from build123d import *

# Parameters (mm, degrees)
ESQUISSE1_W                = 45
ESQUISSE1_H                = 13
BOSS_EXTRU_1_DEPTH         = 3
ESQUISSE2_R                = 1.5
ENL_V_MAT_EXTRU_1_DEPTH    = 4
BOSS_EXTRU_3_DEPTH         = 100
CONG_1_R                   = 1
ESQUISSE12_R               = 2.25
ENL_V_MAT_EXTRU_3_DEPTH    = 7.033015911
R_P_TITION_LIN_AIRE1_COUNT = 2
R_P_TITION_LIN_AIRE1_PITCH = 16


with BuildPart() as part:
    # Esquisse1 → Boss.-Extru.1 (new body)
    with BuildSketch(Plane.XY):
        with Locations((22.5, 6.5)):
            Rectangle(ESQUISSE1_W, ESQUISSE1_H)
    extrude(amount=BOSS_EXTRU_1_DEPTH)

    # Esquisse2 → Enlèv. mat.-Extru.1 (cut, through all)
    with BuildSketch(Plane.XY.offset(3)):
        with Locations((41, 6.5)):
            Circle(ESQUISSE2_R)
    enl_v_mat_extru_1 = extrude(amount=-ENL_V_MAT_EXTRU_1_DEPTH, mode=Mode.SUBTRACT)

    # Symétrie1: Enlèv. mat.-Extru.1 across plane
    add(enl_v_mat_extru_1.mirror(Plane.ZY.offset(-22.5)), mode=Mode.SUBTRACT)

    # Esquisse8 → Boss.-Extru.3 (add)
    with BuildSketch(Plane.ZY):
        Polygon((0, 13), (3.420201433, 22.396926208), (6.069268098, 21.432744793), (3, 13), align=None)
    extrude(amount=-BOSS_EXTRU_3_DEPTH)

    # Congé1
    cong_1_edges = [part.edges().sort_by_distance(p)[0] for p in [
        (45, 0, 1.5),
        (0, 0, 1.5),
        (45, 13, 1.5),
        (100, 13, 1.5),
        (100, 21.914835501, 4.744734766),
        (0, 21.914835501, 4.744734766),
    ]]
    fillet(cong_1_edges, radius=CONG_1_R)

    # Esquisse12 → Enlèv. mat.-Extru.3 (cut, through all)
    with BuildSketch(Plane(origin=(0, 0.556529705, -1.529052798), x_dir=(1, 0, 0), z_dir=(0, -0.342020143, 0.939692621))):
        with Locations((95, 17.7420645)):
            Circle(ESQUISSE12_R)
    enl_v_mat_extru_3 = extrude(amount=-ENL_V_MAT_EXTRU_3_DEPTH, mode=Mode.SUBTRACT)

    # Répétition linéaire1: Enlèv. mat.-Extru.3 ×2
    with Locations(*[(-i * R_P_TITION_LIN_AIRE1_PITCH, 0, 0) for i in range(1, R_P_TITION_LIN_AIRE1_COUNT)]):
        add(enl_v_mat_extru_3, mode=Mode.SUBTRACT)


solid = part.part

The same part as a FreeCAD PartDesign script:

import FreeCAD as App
import Part
import Sketcher

V = App.Vector
Q = App.Units.Quantity


def edges_at(feature, points):
    """Names of the edges that pass closest to the given points."""
    edges = feature.Shape.Edges
    near = lambda p: min(range(len(edges)), key=lambda i: edges[i].distToShape(Part.Vertex(*p))[0])
    return sorted({f"Edge{near(p) + 1}" for p in points})


def add_polygon(sketch, points):
    """Adds a closed chain of lines whose ends are joined by coincident constraints."""
    first, n = sketch.GeometryCount, len(points)
    for a, b in zip(points, points[1:] + points[:1]):
        sketch.addGeometry(Part.LineSegment(App.Vector(*a, 0), App.Vector(*b, 0)), False)
    for i in range(n):
        sketch.addConstraint(Sketcher.Constraint("Coincident", first + i, 2, first + (i + 1) % n, 1))

doc = App.newDocument("Part")
body = doc.addObject("PartDesign::Body", "Body")

sketch1 = body.newObject("Sketcher::SketchObject", "Sketch")
sketch1.AttachmentSupport = (doc.getObject("XY_Plane"), [""])
sketch1.MapMode = "FlatFace"
add_polygon(sketch1, [(0, 13), (0, 0), (45, 0), (45, 13)])
sketch1.addConstraint([
    Sketcher.Constraint("Vertical", 0),
    Sketcher.Constraint("Horizontal", 1),
    Sketcher.Constraint("Vertical", 2),
    Sketcher.Constraint("Horizontal", 3),
    Sketcher.Constraint("Coincident", 0, 2, -1, 1),
    Sketcher.Constraint("DistanceX", 1, 1, 1, 2, Q("45 mm")),
    Sketcher.Constraint("DistanceY", 0, 2, 0, 1, Q("13 mm")),
])
pad1 = body.newObject("PartDesign::Pad", "Pad")
pad1.Profile = sketch1
pad1.Length = 3

sketch2 = body.newObject("Sketcher::SketchObject", "Sketch001")
sketch2.AttachmentSupport = (doc.getObject("XY_Plane"), [""])
sketch2.MapMode = "FlatFace"
sketch2.AttachmentOffset = App.Placement(V(0, 0, 3), App.Rotation())
sketch2.addGeometry(Part.Circle(V(41, 6.5, 0), V(0, 0, 1), 1.5), False)
sketch2.addConstraint([
    Sketcher.Constraint("Diameter", 0, Q("3 mm")),
    Sketcher.Constraint("DistanceX", -1, 1, 0, 3, Q("41 mm")),
    Sketcher.Constraint("DistanceY", -1, 1, 0, 3, Q("6.5 mm")),
])
pocket1 = body.newObject("PartDesign::Pocket", "Pocket")
pocket1.Profile = sketch2
pocket1.Type = "ThroughAll"
doc.recompute()

datumplane = body.newObject("PartDesign::Plane", "DatumPlane")
datumplane.AttachmentSupport = (doc.getObject("YZ_Plane"), [""])
datumplane.MapMode = "FlatFace"
datumplane.AttachmentOffset = App.Placement(V(0, 0, 22.5), App.Rotation())
mirrored = body.newObject("PartDesign::Mirrored", "Mirrored")
mirrored.Originals = [pocket1]
mirrored.MirrorPlane = (datumplane, [""])
body.Tip = mirrored

sketch3 = body.newObject("Sketcher::SketchObject", "Sketch002")
sketch3.AttachmentSupport = (doc.getObject("YZ_Plane"), [""])
sketch3.MapMode = "FlatFace"
add_polygon(sketch3, [(22.4, 3.4), (13, 0), (13, 3), (21.4, 6.1)])
sketch3.addConstraint([
    Sketcher.Constraint("Vertical", 1),
    Sketcher.Constraint("PointOnObject", 0, 2, -1),
    Sketcher.Constraint("Parallel", 0, 2),
    Sketcher.Constraint("Perpendicular", 2, 3),
    Sketcher.Constraint("DistanceY", 1, 1, 1, 2, Q("3 mm")),
    Sketcher.Constraint("Angle", 0, Q("-160 deg")),
    Sketcher.Constraint("Distance", 0, Q("10 mm")),
    Sketcher.Constraint("DistanceX", -1, 1, 0, 2, Q("13 mm")),
])
pad2 = body.newObject("PartDesign::Pad", "Pad001")
pad2.Profile = sketch3
pad2.Length = 100
doc.recompute()

fillet = body.newObject("PartDesign::Fillet", "Fillet")
fillet.Base = (pad2, edges_at(pad2, [
    (45, 0, 1.5),
    (0, 0, 1.5),
    (45, 13, 1.5),
    (100, 13, 1.5),
    (100, 21.915, 4.745),
    (0, 21.915, 4.745),
]))
fillet.Radius = 1

sketch4 = body.newObject("Sketcher::SketchObject", "Sketch003")
sketch4.Placement = App.Placement(V(0, 0.55653, -1.529053), App.Rotation(V(1, 0, 0), V(0, 0.939692621, 0.342020143), V(0, -0.342020143, 0.939692621), "ZXY"))
sketch4.addGeometry(Part.Circle(V(95, 17.7, 0), V(0, 0, 1), 2.2), False)
sketch4.addConstraint([
    Sketcher.Constraint("Diameter", 0, Q("4.5 mm")),
    Sketcher.Constraint("DistanceX", -1, 1, 0, 3, Q("95 mm")),
    Sketcher.Constraint("DistanceY", -1, 1, 0, 3, Q("17.742065 mm")),
])
pocket2 = body.newObject("PartDesign::Pocket", "Pocket001")
pocket2.Profile = sketch4
pocket2.Type = "ThroughAll"
doc.recompute()

linearpattern = body.newObject("PartDesign::LinearPattern", "LinearPattern")
linearpattern.Originals = [pocket2]
linearpattern.Direction = (doc.getObject("X_Axis"), [""])
linearpattern.Mode = "offset"
linearpattern.Offset = 16
linearpattern.Occurrences = 2
linearpattern.Reversed = True
body.Tip = linearpattern

doc.recompute()
